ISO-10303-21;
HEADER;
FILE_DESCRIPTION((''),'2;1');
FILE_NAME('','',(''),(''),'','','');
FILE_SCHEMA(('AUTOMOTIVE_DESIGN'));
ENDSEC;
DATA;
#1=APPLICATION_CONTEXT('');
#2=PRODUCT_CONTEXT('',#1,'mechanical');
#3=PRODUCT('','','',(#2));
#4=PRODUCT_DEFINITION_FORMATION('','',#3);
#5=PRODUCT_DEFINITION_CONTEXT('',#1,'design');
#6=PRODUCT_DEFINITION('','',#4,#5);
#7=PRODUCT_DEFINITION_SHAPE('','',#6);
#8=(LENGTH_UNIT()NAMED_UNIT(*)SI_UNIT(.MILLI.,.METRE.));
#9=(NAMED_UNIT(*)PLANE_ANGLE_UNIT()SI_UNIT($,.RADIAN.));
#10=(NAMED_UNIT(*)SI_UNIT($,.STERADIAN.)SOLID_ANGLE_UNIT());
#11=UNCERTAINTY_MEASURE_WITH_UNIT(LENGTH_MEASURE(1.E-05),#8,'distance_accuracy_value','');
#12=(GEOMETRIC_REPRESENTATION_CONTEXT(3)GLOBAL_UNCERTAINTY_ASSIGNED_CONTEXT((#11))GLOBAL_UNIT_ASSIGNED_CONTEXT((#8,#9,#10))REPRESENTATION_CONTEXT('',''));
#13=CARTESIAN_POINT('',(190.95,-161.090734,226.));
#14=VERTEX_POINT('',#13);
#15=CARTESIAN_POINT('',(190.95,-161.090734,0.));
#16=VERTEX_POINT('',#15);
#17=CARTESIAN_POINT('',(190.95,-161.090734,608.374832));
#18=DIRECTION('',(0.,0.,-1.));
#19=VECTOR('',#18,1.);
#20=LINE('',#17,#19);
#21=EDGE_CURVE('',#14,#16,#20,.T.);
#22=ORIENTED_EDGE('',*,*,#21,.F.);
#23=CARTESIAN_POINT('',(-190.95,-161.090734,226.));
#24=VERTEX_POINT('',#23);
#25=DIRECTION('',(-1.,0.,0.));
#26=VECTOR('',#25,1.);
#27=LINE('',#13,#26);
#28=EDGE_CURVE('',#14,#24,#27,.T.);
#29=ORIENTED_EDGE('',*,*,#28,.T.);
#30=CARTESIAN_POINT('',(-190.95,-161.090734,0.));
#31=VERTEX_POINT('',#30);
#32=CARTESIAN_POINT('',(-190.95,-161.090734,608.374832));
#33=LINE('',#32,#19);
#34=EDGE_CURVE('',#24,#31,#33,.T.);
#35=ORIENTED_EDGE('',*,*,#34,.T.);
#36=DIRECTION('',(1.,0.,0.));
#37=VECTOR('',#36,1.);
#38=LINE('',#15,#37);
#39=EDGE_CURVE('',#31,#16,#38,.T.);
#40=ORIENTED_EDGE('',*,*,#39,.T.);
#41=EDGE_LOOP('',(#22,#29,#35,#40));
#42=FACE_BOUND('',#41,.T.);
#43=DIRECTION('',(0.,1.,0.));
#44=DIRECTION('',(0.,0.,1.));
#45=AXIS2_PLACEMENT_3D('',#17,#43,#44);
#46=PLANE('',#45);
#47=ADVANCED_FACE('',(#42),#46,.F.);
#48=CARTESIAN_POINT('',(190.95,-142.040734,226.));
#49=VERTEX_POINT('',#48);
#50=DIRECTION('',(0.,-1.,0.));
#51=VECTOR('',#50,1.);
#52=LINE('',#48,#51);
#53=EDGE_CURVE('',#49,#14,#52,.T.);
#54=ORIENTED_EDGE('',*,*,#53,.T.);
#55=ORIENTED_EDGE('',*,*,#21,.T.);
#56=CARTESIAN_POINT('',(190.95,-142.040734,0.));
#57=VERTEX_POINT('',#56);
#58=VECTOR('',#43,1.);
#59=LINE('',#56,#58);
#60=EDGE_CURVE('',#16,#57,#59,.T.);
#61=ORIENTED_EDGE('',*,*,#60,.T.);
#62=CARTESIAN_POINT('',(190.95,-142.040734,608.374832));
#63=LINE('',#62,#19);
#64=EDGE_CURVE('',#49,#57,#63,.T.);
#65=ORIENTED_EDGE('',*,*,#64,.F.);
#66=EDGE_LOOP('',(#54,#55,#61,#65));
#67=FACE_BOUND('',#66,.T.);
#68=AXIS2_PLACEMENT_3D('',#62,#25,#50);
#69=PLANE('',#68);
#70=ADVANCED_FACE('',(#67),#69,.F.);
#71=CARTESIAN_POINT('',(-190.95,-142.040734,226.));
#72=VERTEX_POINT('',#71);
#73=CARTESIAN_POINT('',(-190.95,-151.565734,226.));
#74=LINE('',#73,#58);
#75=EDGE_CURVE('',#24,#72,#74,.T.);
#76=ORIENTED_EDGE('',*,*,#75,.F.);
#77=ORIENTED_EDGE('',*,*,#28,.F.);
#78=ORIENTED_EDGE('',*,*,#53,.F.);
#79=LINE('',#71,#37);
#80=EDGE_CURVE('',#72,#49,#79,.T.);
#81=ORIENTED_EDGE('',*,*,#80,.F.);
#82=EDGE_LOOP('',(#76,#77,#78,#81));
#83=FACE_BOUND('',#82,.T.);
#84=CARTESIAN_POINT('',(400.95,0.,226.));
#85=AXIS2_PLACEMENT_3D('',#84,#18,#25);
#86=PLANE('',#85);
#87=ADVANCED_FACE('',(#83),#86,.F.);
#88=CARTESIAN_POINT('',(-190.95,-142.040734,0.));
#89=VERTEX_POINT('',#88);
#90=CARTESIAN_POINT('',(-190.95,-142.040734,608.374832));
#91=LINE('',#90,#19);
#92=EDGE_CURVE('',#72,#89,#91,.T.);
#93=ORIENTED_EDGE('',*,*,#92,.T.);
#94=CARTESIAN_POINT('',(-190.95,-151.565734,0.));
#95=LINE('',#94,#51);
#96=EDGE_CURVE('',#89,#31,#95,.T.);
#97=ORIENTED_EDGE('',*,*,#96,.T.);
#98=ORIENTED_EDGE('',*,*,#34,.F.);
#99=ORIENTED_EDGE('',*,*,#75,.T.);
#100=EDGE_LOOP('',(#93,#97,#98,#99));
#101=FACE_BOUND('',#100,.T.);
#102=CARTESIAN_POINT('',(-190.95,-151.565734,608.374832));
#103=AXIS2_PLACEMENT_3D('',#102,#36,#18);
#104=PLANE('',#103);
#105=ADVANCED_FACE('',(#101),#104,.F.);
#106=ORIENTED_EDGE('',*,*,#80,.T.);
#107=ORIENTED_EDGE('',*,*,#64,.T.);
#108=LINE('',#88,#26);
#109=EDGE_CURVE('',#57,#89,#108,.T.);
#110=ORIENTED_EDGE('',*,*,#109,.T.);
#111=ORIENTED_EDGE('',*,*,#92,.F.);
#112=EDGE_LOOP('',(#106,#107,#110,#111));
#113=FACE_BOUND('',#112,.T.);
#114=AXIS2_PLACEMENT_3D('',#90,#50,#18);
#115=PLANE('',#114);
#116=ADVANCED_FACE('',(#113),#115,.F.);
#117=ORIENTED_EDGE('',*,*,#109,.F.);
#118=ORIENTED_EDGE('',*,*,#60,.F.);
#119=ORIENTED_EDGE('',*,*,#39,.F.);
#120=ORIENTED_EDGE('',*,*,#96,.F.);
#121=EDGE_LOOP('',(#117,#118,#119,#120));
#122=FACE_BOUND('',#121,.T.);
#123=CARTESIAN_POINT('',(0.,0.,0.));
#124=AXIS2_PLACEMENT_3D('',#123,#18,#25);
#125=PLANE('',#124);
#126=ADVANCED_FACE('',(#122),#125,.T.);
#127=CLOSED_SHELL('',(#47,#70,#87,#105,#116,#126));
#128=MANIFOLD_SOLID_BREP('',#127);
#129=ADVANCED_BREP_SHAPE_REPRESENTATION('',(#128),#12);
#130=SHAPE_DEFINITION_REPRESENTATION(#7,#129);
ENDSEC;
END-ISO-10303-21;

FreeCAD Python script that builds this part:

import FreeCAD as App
import Part
import Sketcher
Q = App.Units.Quantity


def add_polygon(sketch, points):
    """Adds a closed chain of lines whose ends are joined by coincident constraints."""
    first, n = sketch.GeometryCount, len(points)
    for a, b in zip(points, points[1:] + points[:1]):
        sketch.addGeometry(Part.LineSegment(App.Vector(*a, 0), App.Vector(*b, 0)), False)
    for i in range(n):
        sketch.addConstraint(Sketcher.Constraint("Coincident", first + i, 2, first + (i + 1) % n, 1))

doc = App.newDocument("Part")
body = doc.addObject("PartDesign::Body", "Body")

sketch1 = body.newObject("Sketcher::SketchObject", "Sketch")
sketch1.AttachmentSupport = (doc.getObject("XY_Plane"), [""])
sketch1.MapMode = "FlatFace"
add_polygon(sketch1, [(-190.95, -142.040734), (-190.95, -161.090734), (190.95, -161.090734), (190.95, -142.040734)])
sketch1.addConstraint([
    Sketcher.Constraint("Vertical", 0),
    Sketcher.Constraint("Horizontal", 1),
    Sketcher.Constraint("Vertical", 2),
    Sketcher.Constraint("Horizontal", 3),
    Sketcher.Constraint("DistanceX", 1, 1, 1, 2, Q("381.9 mm")),
    Sketcher.Constraint("DistanceY", 0, 2, 0, 1, Q("19.05 mm")),
    Sketcher.Constraint("DistanceX", 0, 2, -1, 1, Q("190.95 mm")),
    Sketcher.Constraint("DistanceY", 0, 2, -1, 1, Q("161.090734 mm")),
])
pad1 = body.newObject("PartDesign::Pad", "Pad")
pad1.Profile = sketch1
pad1.Length = 226

doc.recompute()
